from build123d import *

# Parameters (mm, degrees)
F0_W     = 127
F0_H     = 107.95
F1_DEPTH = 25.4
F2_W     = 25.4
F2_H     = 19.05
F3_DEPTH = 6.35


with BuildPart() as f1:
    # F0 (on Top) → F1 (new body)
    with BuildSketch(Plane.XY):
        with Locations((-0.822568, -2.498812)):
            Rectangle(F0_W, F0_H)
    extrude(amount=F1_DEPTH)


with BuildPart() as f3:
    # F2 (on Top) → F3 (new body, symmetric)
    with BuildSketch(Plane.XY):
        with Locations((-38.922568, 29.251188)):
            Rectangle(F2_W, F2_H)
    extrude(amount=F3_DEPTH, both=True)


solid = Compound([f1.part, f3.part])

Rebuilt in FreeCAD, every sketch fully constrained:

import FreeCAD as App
import Part
import Sketcher

V = App.Vector
Q = App.Units.Quantity


def add_polygon(sketch, points):
    """Adds a closed chain of lines whose ends are joined by coincident constraints."""
    first, n = sketch.GeometryCount, len(points)
    for a, b in zip(points, points[1:] + points[:1]):
        sketch.addGeometry(Part.LineSegment(App.Vector(*a, 0), App.Vector(*b, 0)), False)
    for i in range(n):
        sketch.addConstraint(Sketcher.Constraint("Coincident", first + i, 2, first + (i + 1) % n, 1))

doc = App.newDocument("Part")
body = doc.addObject("PartDesign::Body", "Body")

# Sketch on XY plane
sketch1 = body.newObject("Sketcher::SketchObject", "Sketch")
sketch1.AttachmentSupport = (doc.getObject("XY_Plane"), [""])
sketch1.MapMode = "FlatFace"
add_polygon(sketch1, [(-64.322568, 51.476188), (-64.322568, -56.473812), (62.677432, -56.473812), (62.677432, 51.476188)])  # lines 0-3
sketch1.addConstraint(Sketcher.Constraint("Vertical", 0))
sketch1.addConstraint(Sketcher.Constraint("Horizontal", 1))
sketch1.addConstraint(Sketcher.Constraint("Vertical", 2))
sketch1.addConstraint(Sketcher.Constraint("Horizontal", 3))
sketch1.addConstraint(Sketcher.Constraint("DistanceX", 1, 1, 1, 2, Q("5 in")))
sketch1.addConstraint(Sketcher.Constraint("DistanceY", 0, 2, 0, 1, Q("4.25 in")))
sketch1.addConstraint(Sketcher.Constraint("DistanceX", 0, 2, -1, 1, Q("64.322568 mm")))
sketch1.addConstraint(Sketcher.Constraint("DistanceY", 0, 2, -1, 1, Q("56.473812 mm")))
pad1 = body.newObject("PartDesign::Pad", "Pad")
pad1.Profile = sketch1
pad1.Length = Q("1 in")
body2 = doc.addObject("PartDesign::Body", "Body001")

# Sketch on XY plane
sketch2 = body2.newObject("Sketcher::SketchObject", "Sketch001")
sketch2.AttachmentSupport = (doc.getObject("XY_Plane001"), [""])
sketch2.MapMode = "FlatFace"
add_polygon(sketch2, [(-51.622568, 38.776188), (-51.622568, 19.726188), (-26.222568, 19.726188), (-26.222568, 38.776188)])  # lines 0-3
sketch2.addConstraint(Sketcher.Constraint("Vertical", 0))
sketch2.addConstraint(Sketcher.Constraint("Horizontal", 1))
sketch2.addConstraint(Sketcher.Constraint("Vertical", 2))
sketch2.addConstraint(Sketcher.Constraint("Horizontal", 3))
sketch2.addConstraint(Sketcher.Constraint("DistanceX", 1, 1, 1, 2, Q("1 in")))
sketch2.addConstraint(Sketcher.Constraint("DistanceY", 0, 2, 0, 1, Q("0.75 in")))
sketch2.addConstraint(Sketcher.Constraint("DistanceY", -1, 1, 0, 2, Q("19.726188 mm")))
sketch2.addConstraint(Sketcher.Constraint("DistanceX", 0, 2, -1, 1, Q("51.622568 mm")))
pad2 = body2.newObject("PartDesign::Pad", "Pad001")
pad2.Profile = sketch2
pad2.Length = Q("0.5 in")
pad2.Midplane = True

doc.recompute()
